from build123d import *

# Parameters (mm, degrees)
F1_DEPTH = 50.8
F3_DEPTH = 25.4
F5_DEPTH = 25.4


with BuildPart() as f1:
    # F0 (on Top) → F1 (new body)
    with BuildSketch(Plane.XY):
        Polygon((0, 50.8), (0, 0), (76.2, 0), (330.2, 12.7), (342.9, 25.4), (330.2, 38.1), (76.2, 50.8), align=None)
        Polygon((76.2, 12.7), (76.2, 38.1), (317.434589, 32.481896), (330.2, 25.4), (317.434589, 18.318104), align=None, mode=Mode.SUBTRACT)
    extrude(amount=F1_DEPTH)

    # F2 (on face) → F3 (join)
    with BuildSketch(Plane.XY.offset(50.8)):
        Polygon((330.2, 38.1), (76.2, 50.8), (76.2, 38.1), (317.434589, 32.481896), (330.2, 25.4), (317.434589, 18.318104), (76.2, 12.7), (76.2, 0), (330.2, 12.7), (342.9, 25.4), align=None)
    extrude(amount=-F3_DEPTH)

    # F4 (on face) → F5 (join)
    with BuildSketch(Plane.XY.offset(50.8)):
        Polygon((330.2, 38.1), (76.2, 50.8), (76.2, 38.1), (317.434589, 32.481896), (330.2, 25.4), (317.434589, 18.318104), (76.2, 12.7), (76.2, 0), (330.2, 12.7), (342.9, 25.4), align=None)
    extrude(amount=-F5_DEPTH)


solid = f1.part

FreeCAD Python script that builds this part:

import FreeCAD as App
import Part
import Sketcher
Q = App.Units.Quantity

doc = App.newDocument("Part")
body = doc.addObject("PartDesign::Body", "Body")

sketch1 = body.newObject("Sketcher::SketchObject", "Sketch")
sketch1.AttachmentSupport = (doc.getObject("XY_Plane"), [""])
sketch1.MapMode = "FlatFace"
sketch1.addGeometry(Part.LineSegment(App.Vector(0, 51, 0), App.Vector(0, 0, 0)), False)
sketch1.addGeometry(Part.LineSegment(App.Vector(0, 0, 0), App.Vector(76, 0, 0)), False)
sketch1.addGeometry(Part.LineSegment(App.Vector(76, 0, 0), App.Vector(330, 13, 0)), False)
sketch1.addGeometry(Part.LineSegment(App.Vector(330, 13, 0), App.Vector(343, 25, 0)), False)
sketch1.addGeometry(Part.LineSegment(App.Vector(343, 25, 0), App.Vector(330, 38, 0)), False)
sketch1.addGeometry(Part.LineSegment(App.Vector(330, 38, 0), App.Vector(76, 51, 0)), False)
sketch1.addGeometry(Part.LineSegment(App.Vector(76, 51, 0), App.Vector(0, 51, 0)), False)
sketch1.addGeometry(Part.LineSegment(App.Vector(317, 18, 0), App.Vector(76, 13, 0)), False)
sketch1.addGeometry(Part.LineSegment(App.Vector(76, 13, 0), App.Vector(76, 38, 0)), False)
sketch1.addGeometry(Part.LineSegment(App.Vector(76, 38, 0), App.Vector(317, 32, 0)), False)
sketch1.addGeometry(Part.LineSegment(App.Vector(317, 32, 0), App.Vector(330, 25, 0)), False)
sketch1.addGeometry(Part.LineSegment(App.Vector(330, 25, 0), App.Vector(317, 18, 0)), False)
sketch1.addConstraint(Sketcher.Constraint("Coincident", 0, 2, 1, 1))
sketch1.addConstraint(Sketcher.Constraint("Coincident", 1, 2, 2, 1))
sketch1.addConstraint(Sketcher.Constraint("Coincident", 2, 2, 3, 1))
sketch1.addConstraint(Sketcher.Constraint("Coincident", 3, 2, 4, 1))
sketch1.addConstraint(Sketcher.Constraint("Coincident", 4, 2, 5, 1))
sketch1.addConstraint(Sketcher.Constraint("Coincident", 5, 2, 6, 1))
sketch1.addConstraint(Sketcher.Constraint("Coincident", 6, 2, 0, 1))
sketch1.addConstraint(Sketcher.Constraint("Coincident", 7, 2, 8, 1))
sketch1.addConstraint(Sketcher.Constraint("Coincident", 8, 2, 9, 1))
sketch1.addConstraint(Sketcher.Constraint("Coincident", 9, 2, 10, 1))
sketch1.addConstraint(Sketcher.Constraint("Coincident", 10, 2, 11, 1))
sketch1.addConstraint(Sketcher.Constraint("Coincident", 11, 2, 7, 1))
sketch1.addConstraint(Sketcher.Constraint("Vertical", 0))
sketch1.addConstraint(Sketcher.Constraint("Horizontal", 1))
sketch1.addConstraint(Sketcher.Constraint("Horizontal", 6))
sketch1.addConstraint(Sketcher.Constraint("Vertical", 8))
sketch1.addConstraint(Sketcher.Constraint("Coincident", 0, 2, -1, 1))
sketch1.addConstraint(Sketcher.Constraint("Perpendicular", 3, 4))
sketch1.addConstraint(Sketcher.Constraint("Horizontal", 2, 2, 7, 2))
sketch1.addConstraint(Sketcher.Constraint("Horizontal", 4, 2, 8, 2))
sketch1.addConstraint(Sketcher.Constraint("Horizontal", 3, 2, 10, 2))
sketch1.addConstraint(Sketcher.Constraint("Vertical", 2, 2, 4, 2))
sketch1.addConstraint(Sketcher.Constraint("Vertical", 1, 2, 5, 2))
sketch1.addConstraint(Sketcher.Constraint("Vertical", 5, 2, 7, 2))
sketch1.addConstraint(Sketcher.Constraint("Vertical", 4, 2, 10, 2))
sketch1.addConstraint(Sketcher.Constraint("Vertical", 9, 2, 11, 2))
sketch1.addConstraint(Sketcher.Constraint("Equal", 3, 4))
sketch1.addConstraint(Sketcher.Constraint("Equal", 2, 5))
sketch1.addConstraint(Sketcher.Constraint("Equal", 7, 9))
sketch1.addConstraint(Sketcher.Constraint("DistanceX", 1, 1, 1, 2, Q("3 in")))
sketch1.addConstraint(Sketcher.Constraint("DistanceY", 0, 2, 0, 1, Q("2 in")))
sketch1.addConstraint(Sketcher.Constraint("DistanceY", 8, 1, 8, 2, Q("1 in")))
sketch1.addConstraint(Sketcher.Constraint("DistanceX", -1, 1, 2, 2, Q("13 in")))
sketch1.addConstraint(Sketcher.Constraint("Distance", 7, Q("9.5 in")))
sketch1.addConstraint(Sketcher.Constraint("DistanceX", -1, 1, 9, 2, 317.434589))
pad1 = body.newObject("PartDesign::Pad", "Pad")
pad1.Profile = sketch1
pad1.Length = Q("2 in")

sketch2 = body.newObject("Sketcher::SketchObject", "Sketch001")
sketch2.AttachmentSupport = (doc.getObject("XY_Plane"), [""])
sketch2.MapMode = "FlatFace"
sketch2.AttachmentOffset = App.Placement(App.Vector(0, 0, 2 * 25.4), App.Rotation())
sketch2.addGeometry(Part.LineSegment(App.Vector(330, 38, 0), App.Vector(76, 51, 0)), False)
sketch2.addGeometry(Part.LineSegment(App.Vector(76, 51, 0), App.Vector(76, 38, 0)), False)
sketch2.addGeometry(Part.LineSegment(App.Vector(76, 38, 0), App.Vector(317, 32, 0)), False)
sketch2.addGeometry(Part.LineSegment(App.Vector(317, 32, 0), App.Vector(330, 25, 0)), False)
sketch2.addGeometry(Part.LineSegment(App.Vector(330, 25, 0), App.Vector(317, 18, 0)), False)
sketch2.addGeometry(Part.LineSegment(App.Vector(317, 18, 0), App.Vector(76, 13, 0)), False)
sketch2.addGeometry(Part.LineSegment(App.Vector(76, 13, 0), App.Vector(76, 0, 0)), False)
sketch2.addGeometry(Part.LineSegment(App.Vector(76, 0, 0), App.Vector(330, 13, 0)), False)
sketch2.addGeometry(Part.LineSegment(App.Vector(330, 13, 0), App.Vector(343, 25, 0)), False)
sketch2.addGeometry(Part.LineSegment(App.Vector(343, 25, 0), App.Vector(330, 38, 0)), False)
sketch2.addConstraint(Sketcher.Constraint("Coincident", 0, 2, 1, 1))
sketch2.addConstraint(Sketcher.Constraint("Coincident", 1, 2, 2, 1))
sketch2.addConstraint(Sketcher.Constraint("Coincident", 2, 2, 3, 1))
sketch2.addConstraint(Sketcher.Constraint("Coincident", 3, 2, 4, 1))
sketch2.addConstraint(Sketcher.Constraint("Coincident", 4, 2, 5, 1))
sketch2.addConstraint(Sketcher.Constraint("Coincident", 5, 2, 6, 1))
sketch2.addConstraint(Sketcher.Constraint("Coincident", 6, 2, 7, 1))
sketch2.addConstraint(Sketcher.Constraint("Coincident", 7, 2, 8, 1))
sketch2.addConstraint(Sketcher.Constraint("Coincident", 8, 2, 9, 1))
sketch2.addConstraint(Sketcher.Constraint("Coincident", 9, 2, 0, 1))
sketch2.addConstraint(Sketcher.Constraint("Vertical", 1))
sketch2.addConstraint(Sketcher.Constraint("Vertical", 6))
sketch2.addConstraint(Sketcher.Constraint("PointOnObject", 6, 2, -1))
sketch2.addConstraint(Sketcher.Constraint("Perpendicular", 8, 9))
sketch2.addConstraint(Sketcher.Constraint("Horizontal", 5, 2, 7, 2))
sketch2.addConstraint(Sketcher.Constraint("Horizontal", 3, 2, 8, 2))
sketch2.addConstraint(Sketcher.Constraint("Horizontal", 1, 2, 9, 2))
sketch2.addConstraint(Sketcher.Constraint("Vertical", 2, 2, 4, 2))
sketch2.addConstraint(Sketcher.Constraint("Vertical", 1, 2, 5, 2))
sketch2.addConstraint(Sketcher.Constraint("Vertical", 3, 2, 7, 2))
sketch2.addConstraint(Sketcher.Constraint("Vertical", 7, 2, 9, 2))
sketch2.addConstraint(Sketcher.Constraint("Equal", 1, 6))
sketch2.addConstraint(Sketcher.Constraint("Equal", 3, 4))
sketch2.addConstraint(Sketcher.Constraint("Equal", 2, 5))
sketch2.addConstraint(Sketcher.Constraint("DistanceY", 1, 2, 1, 1, Q("0.5 in")))
sketch2.addConstraint(Sketcher.Constraint("DistanceX", -1, 1, 0, 2, Q("3 in")))
sketch2.addConstraint(Sketcher.Constraint("DistanceY", -1, 1, 0, 2, Q("2 in")))
sketch2.addConstraint(Sketcher.Constraint("DistanceX", -1, 1, 3, 2, Q("13 in")))
sketch2.addConstraint(Sketcher.Constraint("Distance", 2, Q("9.5 in")))
sketch2.addConstraint(Sketcher.Constraint("DistanceX", -1, 1, 2, 2, 317.434589))
pad2 = body.newObject("PartDesign::Pad", "Pad001")
pad2.Profile = sketch2
pad2.Length = Q("1 in")
pad2.Reversed = True

sketch3 = body.newObject("Sketcher::SketchObject", "Sketch002")
sketch3.AttachmentSupport = (doc.getObject("XY_Plane"), [""])
sketch3.MapMode = "FlatFace"
sketch3.AttachmentOffset = App.Placement(App.Vector(0, 0, 2 * 25.4), App.Rotation())
sketch3.addGeometry(Part.LineSegment(App.Vector(330, 38, 0), App.Vector(76, 51, 0)), False)
sketch3.addGeometry(Part.LineSegment(App.Vector(76, 51, 0), App.Vector(76, 38, 0)), False)
sketch3.addGeometry(Part.LineSegment(App.Vector(76, 38, 0), App.Vector(317, 32, 0)), False)
sketch3.addGeometry(Part.LineSegment(App.Vector(317, 32, 0), App.Vector(330, 25, 0)), False)
sketch3.addGeometry(Part.LineSegment(App.Vector(330, 25, 0), App.Vector(317, 18, 0)), False)
sketch3.addGeometry(Part.LineSegment(App.Vector(317, 18, 0), App.Vector(76, 13, 0)), False)
sketch3.addGeometry(Part.LineSegment(App.Vector(76, 13, 0), App.Vector(76, 0, 0)), False)
sketch3.addGeometry(Part.LineSegment(App.Vector(76, 0, 0), App.Vector(330, 13, 0)), False)
sketch3.addGeometry(Part.LineSegment(App.Vector(330, 13, 0), App.Vector(343, 25, 0)), False)
sketch3.addGeometry(Part.LineSegment(App.Vector(343, 25, 0), App.Vector(330, 38, 0)), False)
sketch3.addConstraint(Sketcher.Constraint("Coincident", 0, 2, 1, 1))
sketch3.addConstraint(Sketcher.Constraint("Coincident", 1, 2, 2, 1))
sketch3.addConstraint(Sketcher.Constraint("Coincident", 2, 2, 3, 1))
sketch3.addConstraint(Sketcher.Constraint("Coincident", 3, 2, 4, 1))
sketch3.addConstraint(Sketcher.Constraint("Coincident", 4, 2, 5, 1))
sketch3.addConstraint(Sketcher.Constraint("Coincident", 5, 2, 6, 1))
sketch3.addConstraint(Sketcher.Constraint("Coincident", 6, 2, 7, 1))
sketch3.addConstraint(Sketcher.Constraint("Coincident", 7, 2, 8, 1))
sketch3.addConstraint(Sketcher.Constraint("Coincident", 8, 2, 9, 1))
sketch3.addConstraint(Sketcher.Constraint("Coincident", 9, 2, 0, 1))
sketch3.addConstraint(Sketcher.Constraint("Vertical", 1))
sketch3.addConstraint(Sketcher.Constraint("Vertical", 6))
sketch3.addConstraint(Sketcher.Constraint("PointOnObject", 6, 2, -1))
sketch3.addConstraint(Sketcher.Constraint("Perpendicular", 8, 9))
sketch3.addConstraint(Sketcher.Constraint("Horizontal", 5, 2, 7, 2))
sketch3.addConstraint(Sketcher.Constraint("Horizontal", 3, 2, 8, 2))
sketch3.addConstraint(Sketcher.Constraint("Horizontal", 1, 2, 9, 2))
sketch3.addConstraint(Sketcher.Constraint("Vertical", 2, 2, 4, 2))
sketch3.addConstraint(Sketcher.Constraint("Vertical", 1, 2, 5, 2))
sketch3.addConstraint(Sketcher.Constraint("Vertical", 3, 2, 7, 2))
sketch3.addConstraint(Sketcher.Constraint("Vertical", 7, 2, 9, 2))
sketch3.addConstraint(Sketcher.Constraint("Equal", 1, 6))
sketch3.addConstraint(Sketcher.Constraint("Equal", 3, 4))
sketch3.addConstraint(Sketcher.Constraint("Equal", 2, 5))
sketch3.addConstraint(Sketcher.Constraint("DistanceY", 1, 2, 1, 1, Q("0.5 in")))
sketch3.addConstraint(Sketcher.Constraint("DistanceX", -1, 1, 0, 2, Q("3 in")))
sketch3.addConstraint(Sketcher.Constraint("DistanceY", -1, 1, 0, 2, Q("2 in")))
sketch3.addConstraint(Sketcher.Constraint("DistanceX", -1, 1, 3, 2, Q("13 in")))
sketch3.addConstraint(Sketcher.Constraint("Distance", 2, Q("9.5 in")))
sketch3.addConstraint(Sketcher.Constraint("DistanceX", -1, 1, 2, 2, 317.434589))
pad3 = body.newObject("PartDesign::Pad", "Pad002")
pad3.Profile = sketch3
pad3.Length = Q("1 in")
pad3.Reversed = True

doc.recompute()
